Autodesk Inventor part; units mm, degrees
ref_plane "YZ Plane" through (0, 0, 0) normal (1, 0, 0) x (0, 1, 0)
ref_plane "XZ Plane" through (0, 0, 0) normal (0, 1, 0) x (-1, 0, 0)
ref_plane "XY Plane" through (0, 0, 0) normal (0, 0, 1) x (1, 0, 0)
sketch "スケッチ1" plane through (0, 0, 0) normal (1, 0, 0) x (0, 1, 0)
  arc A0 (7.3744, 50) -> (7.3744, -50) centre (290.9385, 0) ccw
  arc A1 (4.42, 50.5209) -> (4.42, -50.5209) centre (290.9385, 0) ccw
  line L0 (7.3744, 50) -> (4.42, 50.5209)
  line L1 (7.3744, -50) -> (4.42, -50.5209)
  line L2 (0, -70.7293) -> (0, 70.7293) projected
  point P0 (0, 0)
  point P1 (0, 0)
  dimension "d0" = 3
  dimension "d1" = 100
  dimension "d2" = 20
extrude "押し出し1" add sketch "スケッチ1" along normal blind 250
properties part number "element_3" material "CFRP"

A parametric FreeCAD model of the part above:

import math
import FreeCAD as App
import Part
import Sketcher

V = App.Vector
Q = App.Units.Quantity

doc = App.newDocument("Part")
body = doc.addObject("PartDesign::Body", "Body")

# Sketch on YZ plane
sketch1 = doc.addObject("Sketcher::SketchObject", "Sketch")
body.addObject(sketch1)
sketch1.AttachmentSupport = (doc.YZ_Plane, [""])
sketch1.MapMode = "FlatFace"
sketch1.addGeometry([
    Part.ArcOfCircle(Part.Circle(V(290.9, 0, 0), V(0, 0, 1), 287.9), math.radians(170), math.radians(190)),
    Part.LineSegment(V(7.4, 50, 0), V(4.4, 50.5, 0)),
    Part.ArcOfCircle(Part.Circle(V(290.9, 0, 0), V(0, 0, 1), 290.9), math.radians(170), math.radians(190)),
    Part.LineSegment(V(4.4, -50.5, 0), V(7.4, -50, 0)),
], False)
sketch1.addConstraint([
    Sketcher.Constraint("Coincident", 0, 1, 1, 1),
    Sketcher.Constraint("Coincident", 1, 2, 2, 1),
    Sketcher.Constraint("Coincident", 2, 2, 3, 1),
    Sketcher.Constraint("Coincident", 3, 2, 0, 2),
    Sketcher.Constraint("Coincident", 2, 3, 0, 3),
    Sketcher.Constraint("Symmetric", 1, 2, 2, 2, -1),
    Sketcher.Constraint("Vertical", 0, 1, 3, 2),
    Sketcher.Constraint("Distance", 1, 3.0),
    Sketcher.Constraint("DistanceY", 3, 2, 0, 1, 100.0),
    Sketcher.Constraint("Angle", 1, Q("170.0008 deg")),
    Sketcher.Constraint("Radius", 0, 287.9385),
    Sketcher.Constraint("DistanceX", -1, 1, 1, 2, 4.42),
])
pad1 = doc.addObject("PartDesign::Pad", "Pad")
body.addObject(pad1)
pad1.Profile = sketch1
pad1.Length = 250

doc.recompute()
